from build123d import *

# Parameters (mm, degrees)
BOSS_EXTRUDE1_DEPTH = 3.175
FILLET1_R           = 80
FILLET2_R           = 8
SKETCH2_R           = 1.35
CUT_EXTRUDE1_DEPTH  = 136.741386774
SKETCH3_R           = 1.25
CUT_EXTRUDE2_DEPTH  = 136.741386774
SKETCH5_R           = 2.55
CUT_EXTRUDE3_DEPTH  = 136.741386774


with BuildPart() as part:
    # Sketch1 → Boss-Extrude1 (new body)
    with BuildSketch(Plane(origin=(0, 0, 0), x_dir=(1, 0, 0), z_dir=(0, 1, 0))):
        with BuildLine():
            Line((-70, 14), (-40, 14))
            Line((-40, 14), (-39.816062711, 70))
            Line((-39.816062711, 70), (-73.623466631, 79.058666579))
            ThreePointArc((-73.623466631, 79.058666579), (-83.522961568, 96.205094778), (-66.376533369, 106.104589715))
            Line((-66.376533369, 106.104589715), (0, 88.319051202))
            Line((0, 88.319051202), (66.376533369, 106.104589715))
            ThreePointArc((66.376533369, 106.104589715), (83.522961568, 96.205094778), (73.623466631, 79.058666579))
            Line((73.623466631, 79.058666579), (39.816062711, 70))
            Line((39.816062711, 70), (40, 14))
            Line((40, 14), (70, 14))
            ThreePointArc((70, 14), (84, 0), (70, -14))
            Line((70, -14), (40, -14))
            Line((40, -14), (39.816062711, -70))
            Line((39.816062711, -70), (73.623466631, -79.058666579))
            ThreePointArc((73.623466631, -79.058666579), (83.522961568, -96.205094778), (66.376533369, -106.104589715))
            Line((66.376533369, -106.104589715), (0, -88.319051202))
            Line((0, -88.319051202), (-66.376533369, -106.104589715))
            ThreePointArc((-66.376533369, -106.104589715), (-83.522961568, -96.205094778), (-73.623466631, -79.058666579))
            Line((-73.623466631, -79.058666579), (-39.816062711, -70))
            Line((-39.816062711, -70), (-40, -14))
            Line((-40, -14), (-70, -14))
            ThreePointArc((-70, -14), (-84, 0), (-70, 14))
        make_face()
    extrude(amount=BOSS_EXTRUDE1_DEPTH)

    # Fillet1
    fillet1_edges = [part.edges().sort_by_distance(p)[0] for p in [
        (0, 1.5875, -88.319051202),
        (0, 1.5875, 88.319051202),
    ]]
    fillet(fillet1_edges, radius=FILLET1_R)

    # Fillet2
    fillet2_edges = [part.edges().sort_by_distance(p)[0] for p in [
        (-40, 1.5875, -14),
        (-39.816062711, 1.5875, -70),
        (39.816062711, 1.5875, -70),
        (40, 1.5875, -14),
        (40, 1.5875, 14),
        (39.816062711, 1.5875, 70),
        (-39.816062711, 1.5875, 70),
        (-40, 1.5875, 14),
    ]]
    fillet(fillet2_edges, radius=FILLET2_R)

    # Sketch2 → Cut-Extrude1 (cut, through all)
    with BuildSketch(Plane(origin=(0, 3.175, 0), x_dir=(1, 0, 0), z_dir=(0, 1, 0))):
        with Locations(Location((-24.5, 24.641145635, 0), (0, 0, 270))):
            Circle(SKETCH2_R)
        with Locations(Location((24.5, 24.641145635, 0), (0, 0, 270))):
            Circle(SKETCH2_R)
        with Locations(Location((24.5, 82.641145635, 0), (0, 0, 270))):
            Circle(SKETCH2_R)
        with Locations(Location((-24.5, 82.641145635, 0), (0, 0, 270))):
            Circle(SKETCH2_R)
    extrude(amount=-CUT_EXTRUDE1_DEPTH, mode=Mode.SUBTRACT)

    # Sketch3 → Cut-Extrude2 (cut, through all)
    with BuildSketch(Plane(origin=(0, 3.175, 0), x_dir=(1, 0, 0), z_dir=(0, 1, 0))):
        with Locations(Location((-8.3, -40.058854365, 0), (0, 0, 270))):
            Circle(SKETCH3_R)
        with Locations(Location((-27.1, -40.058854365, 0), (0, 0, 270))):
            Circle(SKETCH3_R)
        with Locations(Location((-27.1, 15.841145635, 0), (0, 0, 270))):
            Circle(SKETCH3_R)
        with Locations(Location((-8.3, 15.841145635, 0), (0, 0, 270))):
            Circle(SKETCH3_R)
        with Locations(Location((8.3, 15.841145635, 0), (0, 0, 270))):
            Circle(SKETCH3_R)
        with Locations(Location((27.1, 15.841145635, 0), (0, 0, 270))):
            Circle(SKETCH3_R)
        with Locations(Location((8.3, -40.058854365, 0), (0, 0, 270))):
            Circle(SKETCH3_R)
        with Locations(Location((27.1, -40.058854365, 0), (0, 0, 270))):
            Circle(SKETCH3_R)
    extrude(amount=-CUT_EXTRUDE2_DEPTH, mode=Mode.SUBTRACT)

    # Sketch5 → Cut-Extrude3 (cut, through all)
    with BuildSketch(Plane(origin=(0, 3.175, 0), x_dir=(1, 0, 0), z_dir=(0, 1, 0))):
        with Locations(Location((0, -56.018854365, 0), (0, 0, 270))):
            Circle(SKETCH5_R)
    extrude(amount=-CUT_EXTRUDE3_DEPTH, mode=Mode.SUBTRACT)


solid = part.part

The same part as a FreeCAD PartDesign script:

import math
import FreeCAD as App
import Part
import Sketcher
from FreeCAD import Vector
Q = App.Units.Quantity


def edges_at(feature, points):
    """Names of the edges that pass closest to the given points."""
    edges = feature.Shape.Edges
    near = lambda p: min(range(len(edges)), key=lambda i: edges[i].distToShape(Part.Vertex(*p))[0])
    return sorted({f"Edge{near(p) + 1}" for p in points})

doc = App.newDocument("Part")
body = doc.addObject("PartDesign::Body", "Body")

# Sketch on XZ plane
sketch1 = body.newObject("Sketcher::SketchObject", "Sketch")
sketch1.AttachmentSupport = (doc.getObject("XZ_Plane"), [""])
sketch1.MapMode = "FlatFace"
sketch1.addGeometry(Part.LineSegment(Vector(-40, -14, 0), Vector(-70, -14, 0)), False)
sketch1.addGeometry(Part.ArcOfCircle(Part.Circle(Vector(-70, 0, 0), Vector(0, 0, 1), 14), math.radians(90), math.radians(270)), False)
sketch1.addGeometry(Part.LineSegment(Vector(-70, 14, 0), Vector(-40, 14, 0)), False)
sketch1.addGeometry(Part.LineSegment(Vector(-40, 14, 0), Vector(-40, 70, 0)), False)
sketch1.addGeometry(Part.LineSegment(Vector(-40, 70, 0), Vector(-74, 79, 0)), False)
sketch1.addGeometry(Part.ArcOfCircle(Part.Circle(Vector(-70, 93, 0), Vector(0, 0, 1), 14), math.radians(75), math.radians(255)), False)
sketch1.addGeometry(Part.LineSegment(Vector(-66, 106, 0), Vector(0, 88, 0)), False)
sketch1.addGeometry(Part.LineSegment(Vector(0, 88, 0), Vector(66, 106, 0)), False)
sketch1.addGeometry(Part.ArcOfCircle(Part.Circle(Vector(70, 93, 0), Vector(0, 0, 1), 14), math.radians(-75), math.radians(105)), False)
sketch1.addGeometry(Part.LineSegment(Vector(74, 79, 0), Vector(40, 70, 0)), False)
sketch1.addGeometry(Part.LineSegment(Vector(40, 70, 0), Vector(40, 14, 0)), False)
sketch1.addGeometry(Part.LineSegment(Vector(40, 14, 0), Vector(70, 14, 0)), False)
sketch1.addGeometry(Part.ArcOfCircle(Part.Circle(Vector(70, 0, 0), Vector(0, 0, 1), 14), math.radians(-90), math.radians(90)), False)
sketch1.addGeometry(Part.LineSegment(Vector(70, -14, 0), Vector(40, -14, 0)), False)
sketch1.addGeometry(Part.LineSegment(Vector(40, -14, 0), Vector(40, -70, 0)), False)
sketch1.addGeometry(Part.LineSegment(Vector(40, -70, 0), Vector(74, -79, 0)), False)
sketch1.addGeometry(Part.ArcOfCircle(Part.Circle(Vector(70, -93, 0), Vector(0, 0, 1), 14), math.radians(-105), math.radians(75)), False)
sketch1.addGeometry(Part.LineSegment(Vector(66, -106, 0), Vector(0, -88, 0)), False)
sketch1.addGeometry(Part.LineSegment(Vector(0, -88, 0), Vector(-66, -106, 0)), False)
sketch1.addGeometry(Part.ArcOfCircle(Part.Circle(Vector(-70, -93, 0), Vector(0, 0, 1), 14), math.radians(105), math.radians(285)), False)
sketch1.addGeometry(Part.LineSegment(Vector(-74, -79, 0), Vector(-40, -70, 0)), False)
sketch1.addGeometry(Part.LineSegment(Vector(-40, -70, 0), Vector(-40, -14, 0)), False)
sketch1.addConstraint(Sketcher.Constraint("Tangent", 0, 2, 1, 2))
sketch1.addConstraint(Sketcher.Constraint("Tangent", 1, 1, 2, 1))
sketch1.addConstraint(Sketcher.Constraint("Coincident", 2, 2, 3, 1))
sketch1.addConstraint(Sketcher.Constraint("Coincident", 3, 2, 4, 1))
sketch1.addConstraint(Sketcher.Constraint("Tangent", 4, 2, 5, 2))
sketch1.addConstraint(Sketcher.Constraint("Tangent", 5, 1, 6, 1))
sketch1.addConstraint(Sketcher.Constraint("Coincident", 6, 2, 7, 1))
sketch1.addConstraint(Sketcher.Constraint("Tangent", 7, 2, 8, 2))
sketch1.addConstraint(Sketcher.Constraint("Tangent", 8, 1, 9, 1))
sketch1.addConstraint(Sketcher.Constraint("Coincident", 9, 2, 10, 1))
sketch1.addConstraint(Sketcher.Constraint("Coincident", 10, 2, 11, 1))
sketch1.addConstraint(Sketcher.Constraint("Tangent", 11, 2, 12, 2))
sketch1.addConstraint(Sketcher.Constraint("Tangent", 12, 1, 13, 1))
sketch1.addConstraint(Sketcher.Constraint("Coincident", 13, 2, 14, 1))
sketch1.addConstraint(Sketcher.Constraint("Coincident", 14, 2, 15, 1))
sketch1.addConstraint(Sketcher.Constraint("Tangent", 15, 2, 16, 2))
sketch1.addConstraint(Sketcher.Constraint("Tangent", 16, 1, 17, 1))
sketch1.addConstraint(Sketcher.Constraint("Coincident", 17, 2, 18, 1))
sketch1.addConstraint(Sketcher.Constraint("Tangent", 18, 2, 19, 2))
sketch1.addConstraint(Sketcher.Constraint("Tangent", 19, 1, 20, 1))
sketch1.addConstraint(Sketcher.Constraint("Coincident", 20, 2, 21, 1))
sketch1.addConstraint(Sketcher.Constraint("Coincident", 21, 2, 0, 1))
sketch1.addConstraint(Sketcher.Constraint("Horizontal", 0))
sketch1.addConstraint(Sketcher.Constraint("Horizontal", 2))
sketch1.addConstraint(Sketcher.Constraint("Horizontal", 11))
sketch1.addConstraint(Sketcher.Constraint("Horizontal", 13))
sketch1.addConstraint(Sketcher.Constraint("Equal", 1, 5))
sketch1.addConstraint(Sketcher.Constraint("Equal", 5, 8))
sketch1.addConstraint(Sketcher.Constraint("Equal", 8, 12))
sketch1.addConstraint(Sketcher.Constraint("Equal", 12, 16))
sketch1.addConstraint(Sketcher.Constraint("Equal", 16, 19))
sketch1.addConstraint(Sketcher.Constraint("Symmetric", 1, 3, 12, 3, -1, 1))
sketch1.addConstraint(Sketcher.Constraint("Symmetric", 5, 3, 16, 3, -1, 1))
sketch1.addConstraint(Sketcher.Constraint("Symmetric", 8, 3, 19, 3, -1, 1))
sketch1.addConstraint(Sketcher.Constraint("Symmetric", 3, 2, 14, 2, -1, 1))
sketch1.addConstraint(Sketcher.Constraint("Symmetric", 6, 2, 17, 2, -1, 1))
sketch1.addConstraint(Sketcher.Constraint("Symmetric", 9, 2, 20, 2, -1, 1))
sketch1.addConstraint(Sketcher.Constraint("Symmetric", 5, 3, 8, 3, -2))
sketch1.addConstraint(Sketcher.Constraint("Symmetric", 3, 2, 9, 2, -2))
sketch1.addConstraint(Sketcher.Constraint("Symmetric", 2, 2, 10, 2, -2))
sketch1.addConstraint(Sketcher.Constraint("PointOnObject", 6, 2, -2))
sketch1.addConstraint(Sketcher.Constraint("Parallel", 4, 6))
sketch1.addConstraint(Sketcher.Constraint("Parallel", 3, 14))
sketch1.addConstraint(Sketcher.Constraint("Parallel", 10, 21))
sketch1.addConstraint(Sketcher.Constraint("Vertical", 1, 3, 5, 3))
sketch1.addConstraint(Sketcher.Constraint("Radius", 1, 14.0))
sketch1.addConstraint(Sketcher.Constraint("DistanceX", 0, 2, 0, 1, 30.0))
sketch1.addConstraint(Sketcher.Constraint("Angle", 4, Q("165 deg")))
sketch1.addConstraint(Sketcher.Constraint("Distance", 4, 35.0))
sketch1.addConstraint(Sketcher.Constraint("DistanceX", 1, 3, -1, 1, 70.0))
sketch1.addConstraint(Sketcher.Constraint("DistanceY", -1, 1, 3, 2, 70.0))
pad1 = body.newObject("PartDesign::Pad", "Pad")
pad1.Profile = sketch1
pad1.Length = 3.175
pad1.Reversed = True
doc.recompute()

fillet = body.newObject("PartDesign::Fillet", "Fillet")
fillet.Base = (pad1, edges_at(pad1, [(0, 1.587, -88.319), (0, 1.587, 88.319)]))
fillet.Radius = 80
doc.recompute()

fillet2 = body.newObject("PartDesign::Fillet", "Fillet001")
fillet2.Base = (fillet, edges_at(fillet, [
    (-40, 1.587, -14),
    (-39.816, 1.587, -70),
    (39.816, 1.587, -70),
    (40, 1.587, -14),
    (40, 1.587, 14),
    (39.816, 1.587, 70),
    (-39.816, 1.587, 70),
    (-40, 1.587, 14),
]))
fillet2.Radius = 8

# Sketch on XZ plane
sketch2 = body.newObject("Sketcher::SketchObject", "Sketch001")
sketch2.AttachmentSupport = (doc.getObject("XZ_Plane"), [""])
sketch2.MapMode = "FlatFace"
sketch2.AttachmentOffset = App.Placement(Vector(0, 0, -3.175), App.Rotation())
sketch2.addGeometry(Part.Circle(Vector(-24.5, -24.6, 0), Vector(0, 0, 1), 1.4), False)
sketch2.addGeometry(Part.Circle(Vector(24.5, -24.6, 0), Vector(0, 0, 1), 1.4), False)
sketch2.addGeometry(Part.Circle(Vector(24.5, -82.6, 0), Vector(0, 0, 1), 1.4), False)
sketch2.addGeometry(Part.Circle(Vector(-24.5, -82.6, 0), Vector(0, 0, 1), 1.4), False)
sketch2.addConstraint(Sketcher.Constraint("Equal", 0, 1))
sketch2.addConstraint(Sketcher.Constraint("Equal", 1, 2))
sketch2.addConstraint(Sketcher.Constraint("Equal", 2, 3))
sketch2.addConstraint(Sketcher.Constraint("Symmetric", 0, 3, 1, 3, -2))
sketch2.addConstraint(Sketcher.Constraint("Symmetric", 2, 3, 3, 3, -2))
sketch2.addConstraint(Sketcher.Constraint("Vertical", 1, 3, 2, 3))
sketch2.addConstraint(Sketcher.Constraint("Diameter", 0, 2.7))
sketch2.addConstraint(Sketcher.Constraint("DistanceX", 0, 3, 1, 3, 49.0))
sketch2.addConstraint(Sketcher.Constraint("DistanceY", 2, 3, 1, 3, 58.0))
sketch2.addConstraint(Sketcher.Constraint("DistanceY", 0, 3, -1, 1, 24.641146))
pocket1 = body.newObject("PartDesign::Pocket", "Pocket")
pocket1.Profile = sketch2
pocket1.Type = "ThroughAll"
pocket1.Reversed = True

# Sketch on XZ plane
sketch3 = body.newObject("Sketcher::SketchObject", "Sketch002")
sketch3.AttachmentSupport = (doc.getObject("XZ_Plane"), [""])
sketch3.MapMode = "FlatFace"
sketch3.AttachmentOffset = App.Placement(Vector(0, 0, -3.175), App.Rotation())
sketch3.addGeometry(Part.Circle(Vector(-8.3, 40.1, 0), Vector(0, 0, 1), 1.2), False)
sketch3.addGeometry(Part.Circle(Vector(-27.1, 40.1, 0), Vector(0, 0, 1), 1.2), False)
sketch3.addGeometry(Part.Circle(Vector(-27.1, -15.8, 0), Vector(0, 0, 1), 1.2), False)
sketch3.addGeometry(Part.Circle(Vector(-8.3, -15.8, 0), Vector(0, 0, 1), 1.2), False)
sketch3.addGeometry(Part.Circle(Vector(8.3, -15.8, 0), Vector(0, 0, 1), 1.2), False)
sketch3.addGeometry(Part.Circle(Vector(27.1, -15.8, 0), Vector(0, 0, 1), 1.2), False)
sketch3.addGeometry(Part.Circle(Vector(8.3, 40.1, 0), Vector(0, 0, 1), 1.2), False)
sketch3.addGeometry(Part.Circle(Vector(27.1, 40.1, 0), Vector(0, 0, 1), 1.2), False)
sketch3.addConstraint(Sketcher.Constraint("Equal", 0, 1))
sketch3.addConstraint(Sketcher.Constraint("Equal", 1, 2))
sketch3.addConstraint(Sketcher.Constraint("Equal", 2, 3))
sketch3.addConstraint(Sketcher.Constraint("Equal", 3, 4))
sketch3.addConstraint(Sketcher.Constraint("Equal", 4, 5))
sketch3.addConstraint(Sketcher.Constraint("Equal", 5, 6))
sketch3.addConstraint(Sketcher.Constraint("Equal", 6, 7))
sketch3.addConstraint(Sketcher.Constraint("Symmetric", 3, 3, 4, 3, -2))
sketch3.addConstraint(Sketcher.Constraint("Symmetric", 2, 3, 5, 3, -2))
sketch3.addConstraint(Sketcher.Constraint("Symmetric", 0, 3, 6, 3, -2))
sketch3.addConstraint(Sketcher.Constraint("Symmetric", 1, 3, 7, 3, -2))
sketch3.addConstraint(Sketcher.Constraint("Horizontal", 0, 3, 1, 3))
sketch3.addConstraint(Sketcher.Constraint("Horizontal", 2, 3, 3, 3))
sketch3.addConstraint(Sketcher.Constraint("Vertical", 1, 3, 2, 3))
sketch3.addConstraint(Sketcher.Constraint("Vertical", 0, 3, 3, 3))
sketch3.addConstraint(Sketcher.Constraint("Diameter", 0, 2.5))
sketch3.addConstraint(Sketcher.Constraint("DistanceX", 0, 3, -1, 1, 8.3))
sketch3.addConstraint(Sketcher.Constraint("DistanceX", 1, 3, -1, 1, 27.1))
sketch3.addConstraint(Sketcher.Constraint("DistanceY", 2, 3, 1, 3, 55.9))
sketch3.addConstraint(Sketcher.Constraint("DistanceY", -1, 1, 0, 3, 40.058854))
pocket2 = body.newObject("PartDesign::Pocket", "Pocket001")
pocket2.Profile = sketch3
pocket2.Type = "ThroughAll"
pocket2.Reversed = True

# Sketch on XZ plane
sketch4 = body.newObject("Sketcher::SketchObject", "Sketch003")
sketch4.AttachmentSupport = (doc.getObject("XZ_Plane"), [""])
sketch4.MapMode = "FlatFace"
sketch4.AttachmentOffset = App.Placement(Vector(0, 0, -3.175), App.Rotation())
sketch4.addGeometry(Part.Circle(Vector(0, 56, 0), Vector(0, 0, 1), 2.5), False)
sketch4.addConstraint(Sketcher.Constraint("PointOnObject", 0, 3, -2))
sketch4.addConstraint(Sketcher.Constraint("Diameter", 0, 5.1))
sketch4.addConstraint(Sketcher.Constraint("DistanceY", -1, 1, 0, 3, 56.018854))
pocket3 = body.newObject("PartDesign::Pocket", "Pocket002")
pocket3.Profile = sketch4
pocket3.Type = "ThroughAll"
pocket3.Reversed = True

doc.recompute()
